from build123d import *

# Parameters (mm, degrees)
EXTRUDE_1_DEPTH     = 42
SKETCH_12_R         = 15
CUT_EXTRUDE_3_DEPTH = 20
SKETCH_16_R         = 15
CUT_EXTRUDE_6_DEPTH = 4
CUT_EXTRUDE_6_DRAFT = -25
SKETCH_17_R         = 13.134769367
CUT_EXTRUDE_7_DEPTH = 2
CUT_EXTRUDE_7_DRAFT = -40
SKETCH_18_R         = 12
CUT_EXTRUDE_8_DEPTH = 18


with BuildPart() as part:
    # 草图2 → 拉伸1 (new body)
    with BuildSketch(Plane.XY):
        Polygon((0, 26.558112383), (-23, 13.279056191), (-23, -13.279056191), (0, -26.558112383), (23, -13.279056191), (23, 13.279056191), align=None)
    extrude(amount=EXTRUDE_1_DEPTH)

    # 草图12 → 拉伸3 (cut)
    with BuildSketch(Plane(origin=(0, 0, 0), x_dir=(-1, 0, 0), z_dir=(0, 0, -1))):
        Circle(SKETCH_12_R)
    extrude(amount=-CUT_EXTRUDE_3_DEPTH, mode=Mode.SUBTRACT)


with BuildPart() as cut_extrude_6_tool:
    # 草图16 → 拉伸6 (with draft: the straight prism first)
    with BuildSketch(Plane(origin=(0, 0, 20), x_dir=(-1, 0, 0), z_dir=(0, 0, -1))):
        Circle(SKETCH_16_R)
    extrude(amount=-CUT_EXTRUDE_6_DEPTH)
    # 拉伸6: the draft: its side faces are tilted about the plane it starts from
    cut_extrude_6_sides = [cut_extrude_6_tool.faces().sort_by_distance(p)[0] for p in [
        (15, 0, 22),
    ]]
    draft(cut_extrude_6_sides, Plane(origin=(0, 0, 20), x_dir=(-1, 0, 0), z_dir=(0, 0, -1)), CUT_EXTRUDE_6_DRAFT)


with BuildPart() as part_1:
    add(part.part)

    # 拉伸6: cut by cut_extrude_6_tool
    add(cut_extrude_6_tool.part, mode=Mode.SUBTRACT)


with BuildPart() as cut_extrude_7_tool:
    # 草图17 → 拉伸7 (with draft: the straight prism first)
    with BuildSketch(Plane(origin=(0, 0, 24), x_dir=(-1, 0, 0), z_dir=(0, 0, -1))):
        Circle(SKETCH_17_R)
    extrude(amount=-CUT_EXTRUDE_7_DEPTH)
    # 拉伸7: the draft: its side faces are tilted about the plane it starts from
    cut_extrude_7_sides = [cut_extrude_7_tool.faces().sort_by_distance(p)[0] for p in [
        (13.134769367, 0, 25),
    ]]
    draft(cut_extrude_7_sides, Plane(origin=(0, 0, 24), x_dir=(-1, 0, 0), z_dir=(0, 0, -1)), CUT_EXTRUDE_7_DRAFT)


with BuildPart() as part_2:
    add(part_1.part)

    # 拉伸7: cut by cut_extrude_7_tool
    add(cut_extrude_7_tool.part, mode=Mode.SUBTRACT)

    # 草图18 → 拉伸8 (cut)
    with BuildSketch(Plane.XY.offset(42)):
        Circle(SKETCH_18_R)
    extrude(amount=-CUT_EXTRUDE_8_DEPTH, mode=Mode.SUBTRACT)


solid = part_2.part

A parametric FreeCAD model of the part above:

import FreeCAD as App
import Part
import Sketcher

V = App.Vector
Q = App.Units.Quantity


def faces_at(feature, points):
    """Names of the faces that lie closest to the given points."""
    faces = feature.Shape.Faces
    near = lambda p: min(range(len(faces)), key=lambda i: faces[i].distToShape(Part.Vertex(*p))[0])
    return sorted({f"Face{near(p) + 1}" for p in points})

doc = App.newDocument("Part")
params = doc.addObject("Spreadsheet::Sheet", "Params")
for row, (alias, value) in enumerate([
    ("pad1_length", "42 mm"),
    ("sketch2_diameter", "30 mm"),
    ("pocket1_length", "20 mm"),
    ("sketch3_diameter", "30 mm"),
    ("pad2_length", "4 mm"),
    ("draft_angle", "25 deg"),
    ("pad3_length", "2 mm"),
    ("draft2_angle", "40 deg"),
    ("sketch5_diameter", "24 mm"),
    ("pocket2_length", "18 mm"),
], start=1):
    params.set(f"A{row}", alias)
    params.set(f"B{row}", "=" + value)
    params.setAlias(f"B{row}", alias)

body = doc.addObject("PartDesign::Body", "Body")

# Sketch on XY plane
sketch1 = body.newObject("Sketcher::SketchObject", "Sketch")
sketch1.AttachmentSupport = (doc.getObject("XY_Plane"), [""])
sketch1.MapMode = "FlatFace"
sketch1.addGeometry([
    Part.LineSegment(V(0, 27, 0), V(-23, 13, 0)),  # 0
    Part.LineSegment(V(-23, 13, 0), V(-23, -13, 0)),  # 1
    Part.LineSegment(V(-23, -13, 0), V(0, -27, 0)),  # 2
    Part.LineSegment(V(0, -27, 0), V(23, -13, 0)),  # 3
    Part.LineSegment(V(23, -13, 0), V(23, 13, 0)),  # 4
    Part.LineSegment(V(23, 13, 0), V(0, 27, 0)),  # 5
], False)
sketch1.addConstraint([
    Sketcher.Constraint("Coincident", 0, 2, 1, 1),
    Sketcher.Constraint("Coincident", 1, 2, 2, 1),
    Sketcher.Constraint("Coincident", 2, 2, 3, 1),
    Sketcher.Constraint("Coincident", 3, 2, 4, 1),
    Sketcher.Constraint("Coincident", 4, 2, 5, 1),
    Sketcher.Constraint("Coincident", 5, 2, 0, 1),
    Sketcher.Constraint("Vertical", 1),
    Sketcher.Constraint("Vertical", 4),
    Sketcher.Constraint("Symmetric", 0, 2, 3, 2, -1, 1),
    Sketcher.Constraint("Symmetric", 2, 2, 5, 2, -1, 1),
    Sketcher.Constraint("PointOnObject", 2, 2, -2),
    Sketcher.Constraint("Parallel", 2, 5),
    Sketcher.Constraint("Horizontal", 1, 2, 3, 2),
    Sketcher.Constraint("Angle", 0, Q("-150 deg")),
    Sketcher.Constraint("DistanceX", 0, 2, -1, 1, 23.0),
    Sketcher.Constraint("DistanceY", 1, 2, 1, 1, 26.558112),
])
pad1 = body.newObject("PartDesign::Pad", "Pad")
pad1.Profile = sketch1
pad1.setExpression("Length", "Params.pad1_length")

# Sketch on XY plane
sketch2 = body.newObject("Sketcher::SketchObject", "Sketch001")
sketch2.AttachmentSupport = (doc.getObject("XY_Plane"), [""])
sketch2.MapMode = "FlatFace"
sketch2.addGeometry(Part.Circle(V(0, 0, 0), V(0, 0, 1), 15), False)
sketch2.addConstraint([
    Sketcher.Constraint("Coincident", 0, 3, -1, 1),
    Sketcher.Constraint("Diameter", 0, 30.0),
])
sketch2.setExpression("Constraints[1]", "Params.sketch2_diameter")
pocket1 = body.newObject("PartDesign::Pocket", "Pocket")
pocket1.Profile = sketch2
pocket1.setExpression("Length", "Params.pocket1_length")
pocket1.Reversed = True
body2 = doc.addObject("PartDesign::Body", "Body001")

# Sketch on XY plane
sketch3 = body2.newObject("Sketcher::SketchObject", "Sketch002")
sketch3.AttachmentSupport = (doc.getObject("XY_Plane001"), [""])
sketch3.MapMode = "FlatFace"
sketch3.AttachmentOffset = App.Placement(V(0, 0, 20), App.Rotation())
sketch3.addGeometry(Part.Circle(V(0, 0, 0), V(0, 0, 1), 15), False)
sketch3.addConstraint([
    Sketcher.Constraint("Coincident", 0, 3, -1, 1),
    Sketcher.Constraint("Diameter", 0, 30.0),
])
sketch3.setExpression("Constraints[1]", "Params.sketch3_diameter")
pad2 = body2.newObject("PartDesign::Pad", "Pad001")
pad2.Profile = sketch3
pad2.setExpression("Length", "Params.pad2_length")
doc.recompute()

datumplane = body2.newObject("PartDesign::Plane", "DatumPlane")
datumplane.AttachmentSupport = (doc.getObject("XY_Plane001"), [""])
datumplane.MapMode = "FlatFace"
datumplane.AttachmentOffset = App.Placement(V(0, 0, 20), App.Rotation())
draft = body2.newObject("PartDesign::Draft", "Draft")
draft.Base = (pad2, faces_at(pad2, [(15, 0, 22)]))
draft.NeutralPlane = (datumplane, [""])
draft.setExpression("Angle", "Params.draft_angle")
draft.Reversed = False
doc.recompute()

boolean = body.newObject("PartDesign::Boolean", "Boolean")
boolean.Type = "Cut"
boolean.addObjects([body2])
body3 = doc.addObject("PartDesign::Body", "Body002")

# Sketch on XY plane
sketch4 = body3.newObject("Sketcher::SketchObject", "Sketch003")
sketch4.AttachmentSupport = (doc.getObject("XY_Plane002"), [""])
sketch4.MapMode = "FlatFace"
sketch4.AttachmentOffset = App.Placement(V(0, 0, 24), App.Rotation())
sketch4.addGeometry(Part.Circle(V(0, 0, 0), V(0, 0, 1), 13), False)
sketch4.addConstraint([
    Sketcher.Constraint("Coincident", 0, 3, -1, 1),
    Sketcher.Constraint("Diameter", 0, 26.269539),
])
pad3 = body3.newObject("PartDesign::Pad", "Pad002")
pad3.Profile = sketch4
pad3.setExpression("Length", "Params.pad3_length")
doc.recompute()

datumplane2 = body3.newObject("PartDesign::Plane", "DatumPlane001")
datumplane2.AttachmentSupport = (doc.getObject("XY_Plane002"), [""])
datumplane2.MapMode = "FlatFace"
datumplane2.AttachmentOffset = App.Placement(V(0, 0, 24), App.Rotation())
draft2 = body3.newObject("PartDesign::Draft", "Draft001")
draft2.Base = (pad3, faces_at(pad3, [(13.135, 0, 25)]))
draft2.NeutralPlane = (datumplane2, [""])
draft2.setExpression("Angle", "Params.draft2_angle")
draft2.Reversed = False
doc.recompute()

boolean2 = body.newObject("PartDesign::Boolean", "Boolean001")
boolean2.Type = "Cut"
boolean2.addObjects([body3])

# Sketch on XY plane
sketch5 = body.newObject("Sketcher::SketchObject", "Sketch004")
sketch5.AttachmentSupport = (doc.getObject("XY_Plane"), [""])
sketch5.MapMode = "FlatFace"
sketch5.AttachmentOffset = App.Placement(V(0, 0, 42), App.Rotation())
sketch5.addGeometry(Part.Circle(V(0, 0, 0), V(0, 0, 1), 12), False)
sketch5.addConstraint([
    Sketcher.Constraint("Coincident", 0, 3, -1, 1),
    Sketcher.Constraint("Diameter", 0, 24.0),
])
sketch5.setExpression("Constraints[1]", "Params.sketch5_diameter")
pocket2 = body.newObject("PartDesign::Pocket", "Pocket001")
pocket2.Profile = sketch5
pocket2.setExpression("Length", "Params.pocket2_length")

doc.recompute()
